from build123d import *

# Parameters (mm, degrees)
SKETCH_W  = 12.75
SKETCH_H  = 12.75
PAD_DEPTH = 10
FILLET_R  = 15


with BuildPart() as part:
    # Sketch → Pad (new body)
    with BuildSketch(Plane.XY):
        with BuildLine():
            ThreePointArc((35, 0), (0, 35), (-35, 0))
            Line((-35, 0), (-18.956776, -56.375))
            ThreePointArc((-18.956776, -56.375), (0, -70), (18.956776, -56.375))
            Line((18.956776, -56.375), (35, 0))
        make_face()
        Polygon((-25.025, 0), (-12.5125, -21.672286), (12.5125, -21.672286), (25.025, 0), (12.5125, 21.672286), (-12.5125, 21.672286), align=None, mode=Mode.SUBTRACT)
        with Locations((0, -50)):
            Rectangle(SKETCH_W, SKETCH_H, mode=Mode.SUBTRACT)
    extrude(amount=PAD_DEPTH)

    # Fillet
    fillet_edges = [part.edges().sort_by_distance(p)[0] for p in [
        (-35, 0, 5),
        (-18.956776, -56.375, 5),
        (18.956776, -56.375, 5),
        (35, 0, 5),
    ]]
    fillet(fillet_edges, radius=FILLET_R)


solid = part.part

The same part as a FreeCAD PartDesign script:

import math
import FreeCAD as App
import Part
import Sketcher
from FreeCAD import Vector
Q = App.Units.Quantity


def edges_at(feature, points):
    """Names of the edges that pass closest to the given points."""
    edges = feature.Shape.Edges
    near = lambda p: min(range(len(edges)), key=lambda i: edges[i].distToShape(Part.Vertex(*p))[0])
    return sorted({f"Edge{near(p) + 1}" for p in points})

doc = App.newDocument("Part")
body = doc.addObject("PartDesign::Body", "Body")

# Sketch on XY plane
sketch1 = body.newObject("Sketcher::SketchObject", "Sketch")
sketch1.AttachmentSupport = (doc.getObject("XY_Plane"), [""])
sketch1.MapMode = "FlatFace"
sketch1.addGeometry(Part.ArcOfCircle(Part.Circle(Vector(0, 0, 0), Vector(0, 0, 1), 35), math.radians(0), math.radians(180)), False)
sketch1.addGeometry(Part.LineSegment(Vector(-35, 0, 0), Vector(-19, -56, 0)), False)
sketch1.addGeometry(Part.ArcOfCircle(Part.Circle(Vector(0, -50, 0), Vector(0, 0, 1), 20), math.radians(-161), math.radians(-19)), False)
sketch1.addGeometry(Part.LineSegment(Vector(19, -56, 0), Vector(35, 0, 0)), False)
sketch1.addGeometry(Part.LineSegment(Vector(6, -56, 0), Vector(-6, -56, 0)), False)
sketch1.addGeometry(Part.LineSegment(Vector(-6, -56, 0), Vector(-6, -44, 0)), False)
sketch1.addGeometry(Part.LineSegment(Vector(-6, -44, 0), Vector(6, -44, 0)), False)
sketch1.addGeometry(Part.LineSegment(Vector(6, -44, 0), Vector(6, -56, 0)), False)
sketch1.addGeometry(Part.LineSegment(Vector(-13, -22, 0), Vector(-25, 0, 0)), False)
sketch1.addGeometry(Part.LineSegment(Vector(-25, 0, 0), Vector(-13, 22, 0)), False)
sketch1.addGeometry(Part.LineSegment(Vector(-13, 22, 0), Vector(13, 22, 0)), False)
sketch1.addGeometry(Part.LineSegment(Vector(13, 22, 0), Vector(25, 0, 0)), False)
sketch1.addGeometry(Part.LineSegment(Vector(25, 0, 0), Vector(13, -22, 0)), False)
sketch1.addGeometry(Part.LineSegment(Vector(13, -22, 0), Vector(-13, -22, 0)), False)
sketch1.addConstraint(Sketcher.Constraint("Coincident", 0, 2, 1, 1))
sketch1.addConstraint(Sketcher.Constraint("Coincident", 1, 2, 2, 1))
sketch1.addConstraint(Sketcher.Constraint("Coincident", 2, 2, 3, 1))
sketch1.addConstraint(Sketcher.Constraint("Coincident", 3, 2, 0, 1))
sketch1.addConstraint(Sketcher.Constraint("Coincident", 4, 2, 5, 1))
sketch1.addConstraint(Sketcher.Constraint("Coincident", 5, 2, 6, 1))
sketch1.addConstraint(Sketcher.Constraint("Coincident", 6, 2, 7, 1))
sketch1.addConstraint(Sketcher.Constraint("Coincident", 7, 2, 4, 1))
sketch1.addConstraint(Sketcher.Constraint("Coincident", 8, 2, 9, 1))
sketch1.addConstraint(Sketcher.Constraint("Coincident", 9, 2, 10, 1))
sketch1.addConstraint(Sketcher.Constraint("Coincident", 10, 2, 11, 1))
sketch1.addConstraint(Sketcher.Constraint("Coincident", 11, 2, 12, 1))
sketch1.addConstraint(Sketcher.Constraint("Coincident", 12, 2, 13, 1))
sketch1.addConstraint(Sketcher.Constraint("Coincident", 13, 2, 8, 1))
sketch1.addConstraint(Sketcher.Constraint("Horizontal", 4))
sketch1.addConstraint(Sketcher.Constraint("Vertical", 5))
sketch1.addConstraint(Sketcher.Constraint("Horizontal", 6))
sketch1.addConstraint(Sketcher.Constraint("Vertical", 7))
sketch1.addConstraint(Sketcher.Constraint("Horizontal", 10))
sketch1.addConstraint(Sketcher.Constraint("Horizontal", 13))
sketch1.addConstraint(Sketcher.Constraint("Coincident", 0, 3, -1, 1))
sketch1.addConstraint(Sketcher.Constraint("Symmetric", 8, 2, 11, 2, -1, 1))
sketch1.addConstraint(Sketcher.Constraint("Symmetric", 9, 2, 12, 2, -1, 1))
sketch1.addConstraint(Sketcher.Constraint("Symmetric", 1, 2, 2, 2, -2))
sketch1.addConstraint(Sketcher.Constraint("PointOnObject", 0, 2, -1))
sketch1.addConstraint(Sketcher.Constraint("PointOnObject", 3, 2, -1))
sketch1.addConstraint(Sketcher.Constraint("PointOnObject", 8, 2, -1))
sketch1.addConstraint(Sketcher.Constraint("Parallel", 8, 11))
sketch1.addConstraint(Sketcher.Constraint("Horizontal", 2, 2, 4, 2))
sketch1.addConstraint(Sketcher.Constraint("Vertical", 10, 2, 12, 2))
sketch1.addConstraint(Sketcher.Constraint("Equal", 6, 5))
sketch1.addConstraint(Sketcher.Constraint("Radius", 0, Q("35 mm")))
sketch1.addConstraint(Sketcher.Constraint("Radius", 2, Q("19.999999 mm")))
sketch1.addConstraint(Sketcher.Constraint("Angle", 8, Q("120 deg")))
sketch1.addConstraint(Sketcher.Constraint("DistanceY", 2, 3, -1, 1, Q("50.000001 mm")))
sketch1.addConstraint(Sketcher.Constraint("DistanceX", 4, 2, 4, 1, Q("12.75 mm")))
sketch1.addConstraint(Sketcher.Constraint("DistanceX", 8, 2, 6, 2, Q("31.4 mm")))
sketch1.addConstraint(Sketcher.Constraint("DistanceX", 10, 1, 10, 2, Q("25.025 mm")))
sketch1.addConstraint(Sketcher.Constraint("DistanceX", 6, 2, 11, 2, Q("18.65 mm")))
sketch1.addConstraint(Sketcher.Constraint("DistanceY", 1, 2, -1, 1, Q("56.375 mm")))
pad1 = body.newObject("PartDesign::Pad", "Pad")
pad1.Profile = sketch1
pad1.Length = 10
doc.recompute()

fillet = body.newObject("PartDesign::Fillet", "Fillet")
fillet.Base = (pad1, edges_at(pad1, [
    (-35, 0, 5),
    (-18.957, -56.375, 5),
    (18.957, -56.375, 5),
    (35, 0, 5),
]))
fillet.Radius = 15

doc.recompute()
